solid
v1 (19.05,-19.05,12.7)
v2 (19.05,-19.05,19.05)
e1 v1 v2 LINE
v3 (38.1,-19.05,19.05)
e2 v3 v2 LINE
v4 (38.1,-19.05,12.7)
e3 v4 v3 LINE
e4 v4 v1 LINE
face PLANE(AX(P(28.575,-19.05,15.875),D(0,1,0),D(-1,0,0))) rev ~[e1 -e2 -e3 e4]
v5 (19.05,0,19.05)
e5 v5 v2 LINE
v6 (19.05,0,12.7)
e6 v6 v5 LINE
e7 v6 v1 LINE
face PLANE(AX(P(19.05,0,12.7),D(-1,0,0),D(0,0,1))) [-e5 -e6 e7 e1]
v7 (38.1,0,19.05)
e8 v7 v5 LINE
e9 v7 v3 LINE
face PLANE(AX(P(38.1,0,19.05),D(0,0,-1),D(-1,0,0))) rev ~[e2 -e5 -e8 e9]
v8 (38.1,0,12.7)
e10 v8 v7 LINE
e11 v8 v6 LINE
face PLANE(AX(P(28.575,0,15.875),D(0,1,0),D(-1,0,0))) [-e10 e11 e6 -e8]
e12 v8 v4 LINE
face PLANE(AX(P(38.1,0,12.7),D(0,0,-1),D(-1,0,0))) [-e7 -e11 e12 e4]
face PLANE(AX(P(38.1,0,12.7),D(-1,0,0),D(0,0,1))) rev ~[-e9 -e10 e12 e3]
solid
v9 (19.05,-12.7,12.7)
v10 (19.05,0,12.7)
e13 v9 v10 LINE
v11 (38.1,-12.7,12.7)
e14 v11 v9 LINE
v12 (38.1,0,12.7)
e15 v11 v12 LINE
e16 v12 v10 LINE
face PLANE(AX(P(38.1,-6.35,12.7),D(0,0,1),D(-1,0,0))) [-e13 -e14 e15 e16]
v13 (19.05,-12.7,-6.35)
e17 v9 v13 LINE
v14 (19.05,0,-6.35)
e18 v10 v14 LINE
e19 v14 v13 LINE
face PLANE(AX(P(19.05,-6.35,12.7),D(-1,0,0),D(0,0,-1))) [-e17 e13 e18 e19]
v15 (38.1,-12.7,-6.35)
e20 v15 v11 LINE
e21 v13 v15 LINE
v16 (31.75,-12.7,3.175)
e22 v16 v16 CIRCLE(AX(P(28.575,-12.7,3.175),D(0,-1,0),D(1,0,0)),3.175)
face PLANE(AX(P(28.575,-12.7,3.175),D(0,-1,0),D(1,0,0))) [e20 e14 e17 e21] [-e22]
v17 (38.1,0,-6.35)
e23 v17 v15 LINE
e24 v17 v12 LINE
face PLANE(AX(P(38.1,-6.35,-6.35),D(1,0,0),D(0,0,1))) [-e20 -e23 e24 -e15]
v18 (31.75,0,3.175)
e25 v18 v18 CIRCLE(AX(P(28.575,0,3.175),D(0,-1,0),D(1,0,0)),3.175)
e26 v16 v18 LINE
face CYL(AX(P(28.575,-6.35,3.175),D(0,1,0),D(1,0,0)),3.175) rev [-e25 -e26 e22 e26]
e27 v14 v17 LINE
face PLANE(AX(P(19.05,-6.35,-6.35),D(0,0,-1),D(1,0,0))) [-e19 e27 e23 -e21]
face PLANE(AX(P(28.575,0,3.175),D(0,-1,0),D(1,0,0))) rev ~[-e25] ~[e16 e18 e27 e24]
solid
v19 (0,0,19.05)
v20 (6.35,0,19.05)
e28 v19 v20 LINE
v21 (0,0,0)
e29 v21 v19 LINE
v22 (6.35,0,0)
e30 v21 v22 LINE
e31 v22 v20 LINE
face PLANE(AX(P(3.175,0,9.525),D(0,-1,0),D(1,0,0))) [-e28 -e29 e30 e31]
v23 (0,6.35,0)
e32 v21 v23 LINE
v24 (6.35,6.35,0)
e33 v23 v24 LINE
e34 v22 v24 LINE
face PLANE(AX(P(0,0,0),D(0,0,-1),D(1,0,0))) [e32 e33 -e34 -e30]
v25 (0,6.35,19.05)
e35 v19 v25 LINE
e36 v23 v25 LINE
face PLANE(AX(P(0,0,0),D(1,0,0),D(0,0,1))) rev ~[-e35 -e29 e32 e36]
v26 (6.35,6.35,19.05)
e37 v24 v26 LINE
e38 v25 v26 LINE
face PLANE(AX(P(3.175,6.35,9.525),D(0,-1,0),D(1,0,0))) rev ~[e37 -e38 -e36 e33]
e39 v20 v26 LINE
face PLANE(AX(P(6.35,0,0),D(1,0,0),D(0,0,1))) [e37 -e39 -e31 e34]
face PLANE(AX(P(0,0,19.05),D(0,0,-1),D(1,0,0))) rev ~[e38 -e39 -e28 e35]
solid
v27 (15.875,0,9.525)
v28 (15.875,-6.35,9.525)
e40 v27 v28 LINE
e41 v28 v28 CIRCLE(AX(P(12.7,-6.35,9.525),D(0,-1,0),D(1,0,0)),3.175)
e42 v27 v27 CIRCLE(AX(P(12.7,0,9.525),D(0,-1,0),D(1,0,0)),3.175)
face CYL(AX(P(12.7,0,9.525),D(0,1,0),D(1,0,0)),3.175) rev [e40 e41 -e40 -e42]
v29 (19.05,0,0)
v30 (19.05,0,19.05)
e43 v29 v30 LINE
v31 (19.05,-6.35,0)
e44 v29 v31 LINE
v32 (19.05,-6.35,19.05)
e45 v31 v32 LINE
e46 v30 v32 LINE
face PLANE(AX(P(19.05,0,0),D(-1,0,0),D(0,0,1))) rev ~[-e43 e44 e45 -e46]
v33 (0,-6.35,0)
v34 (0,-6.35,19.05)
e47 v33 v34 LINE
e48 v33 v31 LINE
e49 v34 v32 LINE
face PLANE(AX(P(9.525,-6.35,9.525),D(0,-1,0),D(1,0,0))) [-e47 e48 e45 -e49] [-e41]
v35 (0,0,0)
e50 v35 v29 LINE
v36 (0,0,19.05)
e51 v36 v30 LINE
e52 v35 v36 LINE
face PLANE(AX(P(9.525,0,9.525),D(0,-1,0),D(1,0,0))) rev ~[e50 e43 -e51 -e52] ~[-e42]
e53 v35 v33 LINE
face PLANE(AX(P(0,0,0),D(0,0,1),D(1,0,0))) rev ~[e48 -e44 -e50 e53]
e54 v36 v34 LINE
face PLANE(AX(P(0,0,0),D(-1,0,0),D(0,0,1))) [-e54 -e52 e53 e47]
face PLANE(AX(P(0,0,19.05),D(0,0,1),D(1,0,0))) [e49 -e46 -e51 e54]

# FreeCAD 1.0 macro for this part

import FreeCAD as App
import Part
import Sketcher
from FreeCAD import Vector
Q = App.Units.Quantity


def add_polygon(sketch, points):
    """Adds a closed chain of lines whose ends are joined by coincident constraints."""
    first, n = sketch.GeometryCount, len(points)
    for a, b in zip(points, points[1:] + points[:1]):
        sketch.addGeometry(Part.LineSegment(App.Vector(*a, 0), App.Vector(*b, 0)), False)
    for i in range(n):
        sketch.addConstraint(Sketcher.Constraint("Coincident", first + i, 2, first + (i + 1) % n, 1))

doc = App.newDocument("Part")
body = doc.addObject("PartDesign::Body", "Body")

sketch1 = doc.addObject("Sketcher::SketchObject", "Sketch")
body.addObject(sketch1)
sketch1.AttachmentSupport = (doc.XZ_Plane, [""])
sketch1.MapMode = "FlatFace"
add_polygon(sketch1, [(0, 19.1), (0, 0), (19.1, 0), (19.1, 19.1)])
sketch1.addGeometry(Part.Circle(Vector(12.7, 9.5, 0), Vector(0, 0, 1), 3.2), False)
sketch1.addConstraint(Sketcher.Constraint("Vertical", 0))
sketch1.addConstraint(Sketcher.Constraint("Horizontal", 1))
sketch1.addConstraint(Sketcher.Constraint("Vertical", 2))
sketch1.addConstraint(Sketcher.Constraint("Horizontal", 3))
sketch1.addConstraint(Sketcher.Constraint("Coincident", 0, 2, -1, 1))
sketch1.addConstraint(Sketcher.Constraint("Equal", 3, 0))
sketch1.addConstraint(Sketcher.Constraint("Diameter", 4, Q("0.25 in")))
sketch1.addConstraint(Sketcher.Constraint("DistanceX", 1, 1, 1, 2, Q("0.75 in")))
sketch1.addConstraint(Sketcher.Constraint("DistanceX", -1, 1, 4, 3, Q("0.5 in")))
sketch1.addConstraint(Sketcher.Constraint("DistanceY", -1, 1, 4, 3, Q("0.375 in")))
pad1 = doc.addObject("PartDesign::Pad", "Pad")
body.addObject(pad1)
pad1.Profile = sketch1
pad1.Length = Q("0.25 in")
body2 = doc.addObject("PartDesign::Body", "Body001")

sketch2 = doc.addObject("Sketcher::SketchObject", "Sketch001")
body2.addObject(sketch2)
sketch2.AttachmentSupport = (doc.getObject("XZ_Plane001"), [""])
sketch2.MapMode = "FlatFace"
add_polygon(sketch2, [(0, 19), (0, 0), (6, 0), (6, 19)])
sketch2.addConstraint(Sketcher.Constraint("Vertical", 0))
sketch2.addConstraint(Sketcher.Constraint("Horizontal", 1))
sketch2.addConstraint(Sketcher.Constraint("Vertical", 2))
sketch2.addConstraint(Sketcher.Constraint("Horizontal", 3))
sketch2.addConstraint(Sketcher.Constraint("Coincident", 0, 2, -1, 1))
sketch2.addConstraint(Sketcher.Constraint("DistanceX", 1, 1, 1, 2, Q("0.25 in")))
sketch2.addConstraint(Sketcher.Constraint("DistanceY", 0, 2, 0, 1, Q("0.75 in")))
pad2 = doc.addObject("PartDesign::Pad", "Pad001")
body2.addObject(pad2)
pad2.Profile = sketch2
pad2.Length = Q("0.25 in")
pad2.Reversed = True
body3 = doc.addObject("PartDesign::Body", "Body002")

sketch3 = doc.addObject("Sketcher::SketchObject", "Sketch002")
body3.addObject(sketch3)
sketch3.AttachmentSupport = (doc.getObject("XZ_Plane002"), [""])
sketch3.MapMode = "FlatFace"
sketch3.AttachmentOffset = App.Placement(Vector(0, 0, 0.25 * 25.4), App.Rotation())
add_polygon(sketch3, [(19.1, 12.7), (19.1, -6.3), (38.1, -6.3), (38.1, 12.7)])
sketch3.addGeometry(Part.Circle(Vector(28.6, 3.2, 0), Vector(0, 0, 1), 3.2), False)
sketch3.addConstraint(Sketcher.Constraint("Vertical", 0))
sketch3.addConstraint(Sketcher.Constraint("Horizontal", 1))
sketch3.addConstraint(Sketcher.Constraint("Vertical", 2))
sketch3.addConstraint(Sketcher.Constraint("Horizontal", 3))
sketch3.addConstraint(Sketcher.Constraint("Equal", 3, 0))
sketch3.addConstraint(Sketcher.Constraint("Diameter", 4, Q("0.25 in")))
sketch3.addConstraint(Sketcher.Constraint("DistanceX", 1, 1, 1, 2, Q("0.75 in")))
sketch3.addConstraint(Sketcher.Constraint("DistanceX", -1, 1, 1, 2, Q("1.5 in")))
sketch3.addConstraint(Sketcher.Constraint("DistanceY", -1, 1, 2, 2, Q("0.5 in")))
sketch3.addConstraint(Sketcher.Constraint("DistanceX", -1, 1, 4, 3, Q("1.125 in")))
sketch3.addConstraint(Sketcher.Constraint("DistanceY", -1, 1, 4, 3, Q("0.125 in")))
pad3 = doc.addObject("PartDesign::Pad", "Pad002")
body3.addObject(pad3)
pad3.Profile = sketch3
pad3.Length = Q("0.5 in")
pad3.Midplane = True
body4 = doc.addObject("PartDesign::Body", "Body003")

sketch4 = doc.addObject("Sketcher::SketchObject", "Sketch003")
body4.addObject(sketch4)
sketch4.AttachmentSupport = (doc.getObject("XZ_Plane003"), [""])
sketch4.MapMode = "FlatFace"
add_polygon(sketch4, [(38, 19), (38, 13), (19, 13), (19, 19)])
sketch4.addConstraint(Sketcher.Constraint("Vertical", 0))
sketch4.addConstraint(Sketcher.Constraint("Horizontal", 1))
sketch4.addConstraint(Sketcher.Constraint("Vertical", 2))
sketch4.addConstraint(Sketcher.Constraint("Horizontal", 3))
sketch4.addConstraint(Sketcher.Constraint("DistanceX", 1, 2, 1, 1, Q("0.75 in")))
sketch4.addConstraint(Sketcher.Constraint("DistanceY", 0, 2, 0, 1, Q("0.25 in")))
sketch4.addConstraint(Sketcher.Constraint("DistanceX", -1, 1, 0, 2, Q("1.5 in")))
sketch4.addConstraint(Sketcher.Constraint("DistanceY", -1, 1, 0, 2, Q("0.5 in")))
pad4 = doc.addObject("PartDesign::Pad", "Pad003")
body4.addObject(pad4)
pad4.Profile = sketch4
pad4.Length = Q("0.75 in")

doc.recompute()
